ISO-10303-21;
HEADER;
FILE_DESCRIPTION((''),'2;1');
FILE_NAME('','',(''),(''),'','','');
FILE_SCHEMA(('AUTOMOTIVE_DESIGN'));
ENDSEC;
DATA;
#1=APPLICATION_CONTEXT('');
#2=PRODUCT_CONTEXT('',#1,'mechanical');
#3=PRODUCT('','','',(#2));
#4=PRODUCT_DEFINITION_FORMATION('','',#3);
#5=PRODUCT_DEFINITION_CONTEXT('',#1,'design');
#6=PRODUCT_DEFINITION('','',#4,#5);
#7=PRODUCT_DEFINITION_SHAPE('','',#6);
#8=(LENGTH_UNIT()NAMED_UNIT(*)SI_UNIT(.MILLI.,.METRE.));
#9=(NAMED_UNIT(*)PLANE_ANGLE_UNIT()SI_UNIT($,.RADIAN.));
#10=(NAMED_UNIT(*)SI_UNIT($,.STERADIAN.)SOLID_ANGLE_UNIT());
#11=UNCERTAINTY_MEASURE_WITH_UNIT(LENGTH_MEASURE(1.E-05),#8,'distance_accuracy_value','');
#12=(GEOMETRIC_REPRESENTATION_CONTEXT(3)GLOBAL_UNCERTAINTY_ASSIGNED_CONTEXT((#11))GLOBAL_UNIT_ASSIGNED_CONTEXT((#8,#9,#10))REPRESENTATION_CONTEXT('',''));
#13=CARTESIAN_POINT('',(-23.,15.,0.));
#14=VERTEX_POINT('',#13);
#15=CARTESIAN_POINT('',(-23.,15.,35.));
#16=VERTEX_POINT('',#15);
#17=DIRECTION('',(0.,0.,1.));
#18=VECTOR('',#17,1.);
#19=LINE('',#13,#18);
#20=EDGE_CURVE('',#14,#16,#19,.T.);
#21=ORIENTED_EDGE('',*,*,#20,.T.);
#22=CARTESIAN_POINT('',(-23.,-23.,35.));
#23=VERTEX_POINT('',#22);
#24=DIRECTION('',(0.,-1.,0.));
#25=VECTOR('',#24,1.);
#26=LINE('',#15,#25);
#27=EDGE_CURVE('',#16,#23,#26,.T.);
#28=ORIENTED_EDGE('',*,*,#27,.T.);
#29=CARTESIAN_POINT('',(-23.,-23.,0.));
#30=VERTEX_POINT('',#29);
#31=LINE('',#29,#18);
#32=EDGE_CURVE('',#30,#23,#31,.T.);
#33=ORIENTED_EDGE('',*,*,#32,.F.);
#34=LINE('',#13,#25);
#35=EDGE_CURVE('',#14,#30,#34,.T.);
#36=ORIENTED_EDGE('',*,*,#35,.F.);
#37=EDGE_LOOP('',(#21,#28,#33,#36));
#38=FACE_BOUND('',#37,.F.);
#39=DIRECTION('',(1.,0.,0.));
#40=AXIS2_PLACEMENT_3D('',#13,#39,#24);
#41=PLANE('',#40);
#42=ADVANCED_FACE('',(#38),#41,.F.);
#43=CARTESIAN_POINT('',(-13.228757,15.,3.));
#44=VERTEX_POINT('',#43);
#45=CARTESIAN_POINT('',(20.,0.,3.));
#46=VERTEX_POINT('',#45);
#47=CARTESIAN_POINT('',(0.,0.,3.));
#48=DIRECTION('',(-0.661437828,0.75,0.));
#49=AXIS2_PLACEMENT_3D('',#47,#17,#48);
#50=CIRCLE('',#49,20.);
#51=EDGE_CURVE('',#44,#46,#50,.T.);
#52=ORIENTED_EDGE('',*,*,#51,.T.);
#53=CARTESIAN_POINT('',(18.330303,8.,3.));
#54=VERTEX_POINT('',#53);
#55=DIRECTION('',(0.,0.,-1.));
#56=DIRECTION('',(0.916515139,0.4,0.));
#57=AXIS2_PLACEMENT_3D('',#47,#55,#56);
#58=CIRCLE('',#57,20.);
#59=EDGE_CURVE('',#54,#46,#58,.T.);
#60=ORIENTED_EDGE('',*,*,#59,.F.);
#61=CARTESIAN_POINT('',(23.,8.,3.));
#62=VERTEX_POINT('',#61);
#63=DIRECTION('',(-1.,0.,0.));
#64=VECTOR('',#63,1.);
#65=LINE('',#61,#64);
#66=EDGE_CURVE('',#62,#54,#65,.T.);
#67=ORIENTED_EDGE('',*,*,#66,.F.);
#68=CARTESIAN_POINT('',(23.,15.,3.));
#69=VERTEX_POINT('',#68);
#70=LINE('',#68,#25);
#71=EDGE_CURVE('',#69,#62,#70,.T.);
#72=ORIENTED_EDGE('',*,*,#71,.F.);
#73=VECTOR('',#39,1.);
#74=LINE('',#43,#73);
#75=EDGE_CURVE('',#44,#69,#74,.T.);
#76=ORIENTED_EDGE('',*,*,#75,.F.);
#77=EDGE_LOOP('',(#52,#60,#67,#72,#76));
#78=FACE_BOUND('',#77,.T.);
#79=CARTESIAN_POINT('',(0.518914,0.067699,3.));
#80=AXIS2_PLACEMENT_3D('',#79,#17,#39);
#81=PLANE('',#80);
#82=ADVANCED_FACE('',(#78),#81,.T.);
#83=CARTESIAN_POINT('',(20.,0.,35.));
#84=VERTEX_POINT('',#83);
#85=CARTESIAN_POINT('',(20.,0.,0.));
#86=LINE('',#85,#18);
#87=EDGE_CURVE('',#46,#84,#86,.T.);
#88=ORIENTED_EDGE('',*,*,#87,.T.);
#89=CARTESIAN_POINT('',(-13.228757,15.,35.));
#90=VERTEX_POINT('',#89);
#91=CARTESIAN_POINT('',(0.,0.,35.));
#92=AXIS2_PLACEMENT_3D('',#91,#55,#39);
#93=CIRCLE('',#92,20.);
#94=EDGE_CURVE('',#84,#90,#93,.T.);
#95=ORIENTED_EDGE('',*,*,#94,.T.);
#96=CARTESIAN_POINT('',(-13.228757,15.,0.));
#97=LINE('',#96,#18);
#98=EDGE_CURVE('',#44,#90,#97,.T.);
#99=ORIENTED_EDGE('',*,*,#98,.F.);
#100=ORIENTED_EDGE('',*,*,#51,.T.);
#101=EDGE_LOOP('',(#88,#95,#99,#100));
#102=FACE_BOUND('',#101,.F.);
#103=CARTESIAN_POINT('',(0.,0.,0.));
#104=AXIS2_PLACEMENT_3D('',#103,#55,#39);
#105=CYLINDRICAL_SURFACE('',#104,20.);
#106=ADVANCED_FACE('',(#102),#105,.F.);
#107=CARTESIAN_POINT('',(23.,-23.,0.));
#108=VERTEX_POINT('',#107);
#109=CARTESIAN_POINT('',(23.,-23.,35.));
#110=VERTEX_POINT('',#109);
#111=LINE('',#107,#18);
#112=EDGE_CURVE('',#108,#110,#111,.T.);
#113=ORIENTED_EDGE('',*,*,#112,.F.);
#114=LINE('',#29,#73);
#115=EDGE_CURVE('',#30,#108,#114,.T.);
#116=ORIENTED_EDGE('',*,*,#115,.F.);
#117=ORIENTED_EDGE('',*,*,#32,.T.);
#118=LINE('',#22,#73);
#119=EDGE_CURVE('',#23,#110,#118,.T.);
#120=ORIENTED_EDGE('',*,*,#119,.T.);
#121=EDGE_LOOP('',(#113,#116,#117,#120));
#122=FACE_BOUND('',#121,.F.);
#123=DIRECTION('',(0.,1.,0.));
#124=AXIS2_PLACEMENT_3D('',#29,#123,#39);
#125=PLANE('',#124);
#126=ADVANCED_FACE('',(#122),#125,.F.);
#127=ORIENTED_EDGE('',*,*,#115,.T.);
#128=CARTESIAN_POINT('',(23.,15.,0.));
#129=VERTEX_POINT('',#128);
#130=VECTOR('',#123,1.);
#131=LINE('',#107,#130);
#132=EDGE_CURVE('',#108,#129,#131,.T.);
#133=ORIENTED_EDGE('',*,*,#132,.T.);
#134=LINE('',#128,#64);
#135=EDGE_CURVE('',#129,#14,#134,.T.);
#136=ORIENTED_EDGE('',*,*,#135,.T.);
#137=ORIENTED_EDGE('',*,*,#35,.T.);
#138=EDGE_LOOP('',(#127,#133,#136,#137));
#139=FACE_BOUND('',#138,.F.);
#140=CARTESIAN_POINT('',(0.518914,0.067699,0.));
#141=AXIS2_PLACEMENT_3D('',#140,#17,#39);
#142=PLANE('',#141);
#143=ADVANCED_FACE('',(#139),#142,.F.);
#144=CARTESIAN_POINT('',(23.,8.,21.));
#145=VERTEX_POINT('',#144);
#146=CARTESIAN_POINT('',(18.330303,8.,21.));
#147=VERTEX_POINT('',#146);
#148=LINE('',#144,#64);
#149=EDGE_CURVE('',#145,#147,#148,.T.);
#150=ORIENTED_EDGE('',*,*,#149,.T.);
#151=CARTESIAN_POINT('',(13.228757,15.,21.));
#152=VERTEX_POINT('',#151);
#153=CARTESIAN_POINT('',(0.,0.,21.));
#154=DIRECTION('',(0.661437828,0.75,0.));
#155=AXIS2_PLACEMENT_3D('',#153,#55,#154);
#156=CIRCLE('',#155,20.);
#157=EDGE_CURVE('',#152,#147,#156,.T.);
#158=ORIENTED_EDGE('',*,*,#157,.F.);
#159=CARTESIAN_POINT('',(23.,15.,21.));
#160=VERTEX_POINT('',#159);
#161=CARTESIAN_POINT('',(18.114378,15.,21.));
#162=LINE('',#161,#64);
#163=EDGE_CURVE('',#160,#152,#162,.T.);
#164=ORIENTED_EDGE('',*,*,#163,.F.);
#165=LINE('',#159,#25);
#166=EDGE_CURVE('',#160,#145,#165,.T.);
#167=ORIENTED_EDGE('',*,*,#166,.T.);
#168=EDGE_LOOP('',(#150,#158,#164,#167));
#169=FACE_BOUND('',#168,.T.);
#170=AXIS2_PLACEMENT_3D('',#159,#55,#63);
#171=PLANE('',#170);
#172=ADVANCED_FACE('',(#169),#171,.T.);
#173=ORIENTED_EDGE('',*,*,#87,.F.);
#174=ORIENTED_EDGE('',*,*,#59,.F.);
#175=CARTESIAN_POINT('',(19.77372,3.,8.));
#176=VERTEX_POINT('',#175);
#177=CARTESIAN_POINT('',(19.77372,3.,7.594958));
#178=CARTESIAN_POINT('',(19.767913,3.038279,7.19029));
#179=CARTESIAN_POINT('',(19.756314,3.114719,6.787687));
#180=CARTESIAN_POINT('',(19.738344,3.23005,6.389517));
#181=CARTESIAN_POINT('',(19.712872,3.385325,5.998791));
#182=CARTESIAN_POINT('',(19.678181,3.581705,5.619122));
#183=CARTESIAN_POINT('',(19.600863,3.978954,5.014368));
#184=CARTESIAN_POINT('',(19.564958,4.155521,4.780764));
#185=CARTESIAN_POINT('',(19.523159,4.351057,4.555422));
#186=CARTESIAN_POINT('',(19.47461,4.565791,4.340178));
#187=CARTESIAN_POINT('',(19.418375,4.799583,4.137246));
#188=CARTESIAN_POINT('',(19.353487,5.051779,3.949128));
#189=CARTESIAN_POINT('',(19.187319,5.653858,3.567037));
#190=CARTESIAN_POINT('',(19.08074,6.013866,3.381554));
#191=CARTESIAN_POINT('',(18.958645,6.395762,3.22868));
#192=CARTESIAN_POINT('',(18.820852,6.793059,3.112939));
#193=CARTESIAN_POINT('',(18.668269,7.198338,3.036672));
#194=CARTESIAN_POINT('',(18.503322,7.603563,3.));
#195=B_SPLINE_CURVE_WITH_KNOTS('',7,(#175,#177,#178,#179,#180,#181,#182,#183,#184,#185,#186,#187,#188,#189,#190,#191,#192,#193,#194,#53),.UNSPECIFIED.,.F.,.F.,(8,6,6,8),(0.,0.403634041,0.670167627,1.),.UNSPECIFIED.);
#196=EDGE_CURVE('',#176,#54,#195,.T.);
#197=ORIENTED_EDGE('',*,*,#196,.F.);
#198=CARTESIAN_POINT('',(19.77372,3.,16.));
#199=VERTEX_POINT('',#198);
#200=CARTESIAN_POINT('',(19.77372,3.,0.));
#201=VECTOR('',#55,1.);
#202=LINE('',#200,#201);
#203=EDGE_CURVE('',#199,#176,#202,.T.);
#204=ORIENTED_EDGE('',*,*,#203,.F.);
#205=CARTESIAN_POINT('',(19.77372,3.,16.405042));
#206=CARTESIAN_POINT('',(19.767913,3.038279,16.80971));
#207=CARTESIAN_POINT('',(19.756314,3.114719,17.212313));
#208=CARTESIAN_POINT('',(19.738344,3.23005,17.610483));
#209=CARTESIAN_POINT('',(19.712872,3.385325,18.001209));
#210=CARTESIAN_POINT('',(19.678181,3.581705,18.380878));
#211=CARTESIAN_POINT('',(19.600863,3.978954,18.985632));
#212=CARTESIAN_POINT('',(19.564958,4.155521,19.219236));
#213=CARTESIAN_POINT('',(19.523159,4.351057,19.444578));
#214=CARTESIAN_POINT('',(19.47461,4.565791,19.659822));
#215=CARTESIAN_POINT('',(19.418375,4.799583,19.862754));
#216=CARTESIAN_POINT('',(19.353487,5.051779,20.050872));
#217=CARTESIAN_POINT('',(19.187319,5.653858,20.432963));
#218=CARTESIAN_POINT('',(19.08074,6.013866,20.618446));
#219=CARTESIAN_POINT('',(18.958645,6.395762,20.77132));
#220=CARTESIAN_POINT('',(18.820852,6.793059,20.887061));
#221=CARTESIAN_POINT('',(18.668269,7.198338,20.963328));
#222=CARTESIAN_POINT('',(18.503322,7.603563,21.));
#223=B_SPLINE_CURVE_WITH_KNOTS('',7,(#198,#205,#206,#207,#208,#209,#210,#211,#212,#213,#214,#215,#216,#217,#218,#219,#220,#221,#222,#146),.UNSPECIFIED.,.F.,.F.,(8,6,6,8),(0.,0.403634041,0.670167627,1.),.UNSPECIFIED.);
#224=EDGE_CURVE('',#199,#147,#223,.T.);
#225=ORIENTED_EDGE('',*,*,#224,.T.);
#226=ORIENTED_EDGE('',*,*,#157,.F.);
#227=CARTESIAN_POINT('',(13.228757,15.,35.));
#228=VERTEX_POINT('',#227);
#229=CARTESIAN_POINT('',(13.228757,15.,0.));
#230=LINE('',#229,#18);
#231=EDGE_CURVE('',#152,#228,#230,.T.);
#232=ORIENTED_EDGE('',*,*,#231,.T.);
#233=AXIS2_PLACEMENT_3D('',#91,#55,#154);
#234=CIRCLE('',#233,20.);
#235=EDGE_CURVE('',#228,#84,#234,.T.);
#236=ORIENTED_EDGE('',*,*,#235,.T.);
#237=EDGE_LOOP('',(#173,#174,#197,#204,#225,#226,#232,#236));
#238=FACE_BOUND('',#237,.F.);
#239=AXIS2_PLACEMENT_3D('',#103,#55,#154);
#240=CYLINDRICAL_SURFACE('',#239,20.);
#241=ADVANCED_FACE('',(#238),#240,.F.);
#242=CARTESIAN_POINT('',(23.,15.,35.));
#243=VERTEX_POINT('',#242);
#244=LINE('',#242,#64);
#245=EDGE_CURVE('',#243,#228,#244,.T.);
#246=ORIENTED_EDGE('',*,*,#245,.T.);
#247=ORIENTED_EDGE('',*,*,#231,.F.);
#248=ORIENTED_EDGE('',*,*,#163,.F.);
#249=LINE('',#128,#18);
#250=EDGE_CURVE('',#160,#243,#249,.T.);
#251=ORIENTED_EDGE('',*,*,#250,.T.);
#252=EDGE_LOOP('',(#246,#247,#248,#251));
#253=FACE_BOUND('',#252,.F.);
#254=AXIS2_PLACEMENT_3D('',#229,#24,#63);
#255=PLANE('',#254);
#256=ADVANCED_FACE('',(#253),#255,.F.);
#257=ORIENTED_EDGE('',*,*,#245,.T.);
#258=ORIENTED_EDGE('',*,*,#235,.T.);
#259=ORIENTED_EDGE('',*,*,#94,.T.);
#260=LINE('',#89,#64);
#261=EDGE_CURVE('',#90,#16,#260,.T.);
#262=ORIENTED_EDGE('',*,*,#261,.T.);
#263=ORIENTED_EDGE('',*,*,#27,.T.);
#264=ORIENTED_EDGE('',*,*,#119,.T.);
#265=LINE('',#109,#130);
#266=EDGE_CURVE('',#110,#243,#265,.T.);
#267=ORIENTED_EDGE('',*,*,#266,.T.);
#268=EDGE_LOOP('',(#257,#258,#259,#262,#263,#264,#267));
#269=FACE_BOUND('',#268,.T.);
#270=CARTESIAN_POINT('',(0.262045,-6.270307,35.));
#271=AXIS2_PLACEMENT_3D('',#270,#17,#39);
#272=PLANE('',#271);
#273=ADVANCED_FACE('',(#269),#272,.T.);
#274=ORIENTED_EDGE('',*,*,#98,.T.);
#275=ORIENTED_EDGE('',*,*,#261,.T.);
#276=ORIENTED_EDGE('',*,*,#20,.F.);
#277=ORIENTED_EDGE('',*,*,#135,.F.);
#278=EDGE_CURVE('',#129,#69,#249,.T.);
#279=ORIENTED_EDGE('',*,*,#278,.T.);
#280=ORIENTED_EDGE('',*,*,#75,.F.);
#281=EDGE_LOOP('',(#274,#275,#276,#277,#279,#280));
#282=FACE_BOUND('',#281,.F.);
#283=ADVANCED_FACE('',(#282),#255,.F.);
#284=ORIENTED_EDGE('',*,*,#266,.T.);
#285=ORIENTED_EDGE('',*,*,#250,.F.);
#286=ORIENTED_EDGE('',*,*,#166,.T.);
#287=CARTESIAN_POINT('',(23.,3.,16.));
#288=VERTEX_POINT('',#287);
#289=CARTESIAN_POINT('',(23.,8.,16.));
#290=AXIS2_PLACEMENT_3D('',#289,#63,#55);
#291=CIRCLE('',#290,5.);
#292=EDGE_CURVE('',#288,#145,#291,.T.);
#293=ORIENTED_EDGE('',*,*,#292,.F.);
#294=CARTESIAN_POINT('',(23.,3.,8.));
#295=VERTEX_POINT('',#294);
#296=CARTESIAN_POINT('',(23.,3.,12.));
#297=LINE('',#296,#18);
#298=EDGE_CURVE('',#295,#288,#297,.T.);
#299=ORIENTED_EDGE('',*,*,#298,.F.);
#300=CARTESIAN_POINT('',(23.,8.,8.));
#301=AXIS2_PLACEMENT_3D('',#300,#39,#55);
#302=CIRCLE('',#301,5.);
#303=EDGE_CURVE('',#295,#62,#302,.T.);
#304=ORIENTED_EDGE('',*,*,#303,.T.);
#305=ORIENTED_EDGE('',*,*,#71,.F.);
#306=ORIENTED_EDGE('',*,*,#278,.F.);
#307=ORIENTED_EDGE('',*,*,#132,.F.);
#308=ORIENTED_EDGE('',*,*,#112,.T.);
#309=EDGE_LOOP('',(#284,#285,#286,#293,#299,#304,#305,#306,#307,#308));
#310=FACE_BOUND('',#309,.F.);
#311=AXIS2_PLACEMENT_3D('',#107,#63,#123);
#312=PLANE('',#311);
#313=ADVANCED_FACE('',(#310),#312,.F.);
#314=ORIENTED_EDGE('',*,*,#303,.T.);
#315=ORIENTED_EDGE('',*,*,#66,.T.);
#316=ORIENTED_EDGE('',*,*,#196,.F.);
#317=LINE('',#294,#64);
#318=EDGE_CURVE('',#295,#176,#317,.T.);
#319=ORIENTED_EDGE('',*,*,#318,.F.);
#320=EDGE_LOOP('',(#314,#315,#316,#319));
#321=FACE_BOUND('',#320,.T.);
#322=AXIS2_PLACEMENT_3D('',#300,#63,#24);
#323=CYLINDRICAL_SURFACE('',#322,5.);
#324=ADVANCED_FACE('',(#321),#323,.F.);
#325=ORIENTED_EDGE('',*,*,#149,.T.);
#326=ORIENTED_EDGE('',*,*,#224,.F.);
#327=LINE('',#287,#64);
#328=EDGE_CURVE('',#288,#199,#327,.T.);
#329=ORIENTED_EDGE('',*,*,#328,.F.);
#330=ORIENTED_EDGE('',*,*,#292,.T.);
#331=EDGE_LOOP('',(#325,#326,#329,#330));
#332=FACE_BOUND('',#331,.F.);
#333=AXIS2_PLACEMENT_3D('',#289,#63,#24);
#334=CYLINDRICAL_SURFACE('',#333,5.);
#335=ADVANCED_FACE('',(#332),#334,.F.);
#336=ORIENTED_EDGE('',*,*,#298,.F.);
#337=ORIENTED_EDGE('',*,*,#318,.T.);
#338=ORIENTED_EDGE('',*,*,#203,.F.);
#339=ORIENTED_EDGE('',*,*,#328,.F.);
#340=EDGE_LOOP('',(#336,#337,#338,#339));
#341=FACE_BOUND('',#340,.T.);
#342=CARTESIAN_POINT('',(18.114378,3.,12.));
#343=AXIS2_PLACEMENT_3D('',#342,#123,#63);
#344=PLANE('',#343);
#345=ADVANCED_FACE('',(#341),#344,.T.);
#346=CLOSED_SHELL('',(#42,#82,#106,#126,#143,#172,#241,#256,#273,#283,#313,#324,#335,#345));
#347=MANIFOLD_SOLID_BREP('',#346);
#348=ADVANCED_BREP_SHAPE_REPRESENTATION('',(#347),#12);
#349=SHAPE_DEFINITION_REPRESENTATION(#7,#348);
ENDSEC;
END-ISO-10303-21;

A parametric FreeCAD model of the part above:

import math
import FreeCAD as App
import Part
import Sketcher

V = App.Vector


def edges_at(feature, points):
    """Names of the edges that pass closest to the given points."""
    edges = feature.Shape.Edges
    near = lambda p: min(range(len(edges)), key=lambda i: edges[i].distToShape(Part.Vertex(*p))[0])
    return sorted({f"Edge{near(p) + 1}" for p in points})

doc = App.newDocument("Part")
body = doc.addObject("PartDesign::Body", "Body")

# Sketch on XY plane
sketch1 = body.newObject("Sketcher::SketchObject", "Sketch")
sketch1.AttachmentSupport = (doc.getObject("XY_Plane"), [""])
sketch1.MapMode = "FlatFace"
sketch1.addGeometry([
    Part.LineSegment(V(-13, 15, 0), V(-23, 15, 0)),  # 0
    Part.LineSegment(V(-23, 15, 0), V(-23, -23, 0)),  # 1
    Part.LineSegment(V(-23, -23, 0), V(23, -23, 0)),  # 2
    Part.LineSegment(V(23, -23, 0), V(23, 15, 0)),  # 3
    Part.LineSegment(V(23, 15, 0), V(13, 15, 0)),  # 4
    Part.ArcOfCircle(Part.Circle(V(0, 0, 0), V(0, 0, 1), 20), math.radians(0), math.radians(49)),  # 5
    Part.ArcOfCircle(Part.Circle(V(0, 0, 0), V(0, 0, 1), 20), math.radians(131), math.radians(360)),  # 6
], False)
sketch1.addConstraint([
    Sketcher.Constraint("Coincident", 0, 2, 1, 1),
    Sketcher.Constraint("Coincident", 1, 2, 2, 1),
    Sketcher.Constraint("Coincident", 2, 2, 3, 1),
    Sketcher.Constraint("Coincident", 3, 2, 4, 1),
    Sketcher.Constraint("Coincident", 4, 2, 5, 2),
    Sketcher.Constraint("Tangent", 5, 1, 6, 2),
    Sketcher.Constraint("Coincident", 6, 1, 0, 1),
    Sketcher.Constraint("Horizontal", 0),
    Sketcher.Constraint("Vertical", 1),
    Sketcher.Constraint("Horizontal", 2),
    Sketcher.Constraint("Vertical", 3),
    Sketcher.Constraint("Horizontal", 4),
    Sketcher.Constraint("Coincident", 5, 3, -1, 1),
    Sketcher.Constraint("Equal", 5, 6),
    Sketcher.Constraint("Symmetric", 0, 2, 3, 2, -2),
    Sketcher.Constraint("PointOnObject", 5, 1, -1),
    Sketcher.Constraint("Radius", 5, 20.0),
    Sketcher.Constraint("DistanceX", 2, 1, 2, 2, 46.0),
    Sketcher.Constraint("DistanceY", 1, 2, 1, 1, 38.0),
    Sketcher.Constraint("DistanceY", -1, 1, 0, 2, 15.0),
])
pad1 = body.newObject("PartDesign::Pad", "Pad")
pad1.Profile = sketch1
pad1.Length = 35

# Sketch on XY plane
sketch2 = body.newObject("Sketcher::SketchObject", "Sketch001")
sketch2.AttachmentSupport = (doc.getObject("XY_Plane"), [""])
sketch2.MapMode = "FlatFace"
sketch2.addGeometry([
    Part.LineSegment(V(13, 15, 0), V(-13, 15, 0)),
    Part.ArcOfCircle(Part.Circle(V(0, 0, 0), V(0, 0, 1), 20), math.radians(131), math.radians(360)),
    Part.ArcOfCircle(Part.Circle(V(0, 0, 0), V(0, 0, 1), 20), math.radians(0), math.radians(49)),
], False)
sketch2.addConstraint([
    Sketcher.Constraint("Coincident", 0, 2, 1, 1),
    Sketcher.Constraint("Tangent", 1, 2, 2, 1),
    Sketcher.Constraint("Coincident", 2, 2, 0, 1),
    Sketcher.Constraint("Horizontal", 0),
    Sketcher.Constraint("Coincident", 1, 3, -1, 1),
    Sketcher.Constraint("Equal", 1, 2),
    Sketcher.Constraint("PointOnObject", 1, 2, -1),
    Sketcher.Constraint("Radius", 1, 20.0),
    Sketcher.Constraint("DistanceY", -1, 1, 0, 2, 15.0),
])
pad2 = body.newObject("PartDesign::Pad", "Pad001")
pad2.Profile = sketch2
pad2.Length = 3

# Sketch on XZ plane
sketch3 = body.newObject("Sketcher::SketchObject", "Sketch002")
sketch3.AttachmentSupport = (doc.getObject("XZ_Plane"), [""])
sketch3.MapMode = "FlatFace"
sketch3.AttachmentOffset = App.Placement(V(0, 0, -15), App.Rotation())
sketch3.addGeometry([
    Part.LineSegment(V(23, 21, 0), V(23, 3, 0)),
    Part.LineSegment(V(23, 3, 0), V(13, 3, 0)),
    Part.LineSegment(V(13, 3, 0), V(13, 21, 0)),
    Part.LineSegment(V(13, 21, 0), V(23, 21, 0)),
], False)
sketch3.addConstraint([
    Sketcher.Constraint("Coincident", 0, 2, 1, 1),
    Sketcher.Constraint("Coincident", 1, 2, 2, 1),
    Sketcher.Constraint("Coincident", 2, 2, 3, 1),
    Sketcher.Constraint("Coincident", 3, 2, 0, 1),
    Sketcher.Constraint("Vertical", 0),
    Sketcher.Constraint("Horizontal", 1),
    Sketcher.Constraint("Vertical", 2),
    Sketcher.Constraint("Horizontal", 3),
    Sketcher.Constraint("DistanceY", 0, 2, 0, 1, 18.0),
    Sketcher.Constraint("DistanceX", -1, 1, 0, 2, 23.0),
    Sketcher.Constraint("DistanceY", -1, 1, 0, 2, 3.0),
    Sketcher.Constraint("DistanceX", 1, 2, 1, 1, 9.771243),
])
pocket1 = body.newObject("PartDesign::Pocket", "Pocket")
pocket1.Profile = sketch3
pocket1.Length = 12
pocket1.Reversed = True
doc.recompute()

fillet = body.newObject("PartDesign::Fillet", "Fillet")
fillet.Base = (pocket1, edges_at(pocket1, [(21.387, 3, 21), (21.387, 3, 3)]))
fillet.Radius = 5

doc.recompute()
